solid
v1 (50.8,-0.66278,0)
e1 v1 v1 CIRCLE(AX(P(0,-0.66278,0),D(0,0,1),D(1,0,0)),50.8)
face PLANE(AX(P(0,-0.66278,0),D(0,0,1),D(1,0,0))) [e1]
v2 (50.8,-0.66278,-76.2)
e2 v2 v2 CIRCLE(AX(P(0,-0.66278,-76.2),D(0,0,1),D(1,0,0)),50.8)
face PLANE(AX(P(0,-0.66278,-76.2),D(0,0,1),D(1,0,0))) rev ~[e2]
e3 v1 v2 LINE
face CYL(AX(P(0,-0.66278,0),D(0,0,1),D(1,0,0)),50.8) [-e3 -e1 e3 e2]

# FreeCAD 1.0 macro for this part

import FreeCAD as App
import Part
import Sketcher
from FreeCAD import Vector
Q = App.Units.Quantity

doc = App.newDocument("Part")
params = doc.addObject("Spreadsheet::Sheet", "Params")
for row, (alias, value) in enumerate([
    ("sketch1_diameter", "4 in"),
    ("pad1_length", "3 in"),
], start=1):
    params.set(f"A{row}", alias)
    params.set(f"B{row}", "=" + value)
    params.setAlias(f"B{row}", alias)

body = doc.addObject("PartDesign::Body", "Body")

# Sketch on XY plane
sketch1 = body.newObject("Sketcher::SketchObject", "Sketch")
sketch1.AttachmentSupport = (doc.getObject("XY_Plane"), [""])
sketch1.MapMode = "FlatFace"
sketch1.addGeometry(Part.Circle(Vector(0, -1, 0), Vector(0, 0, 1), 51), False)
sketch1.addConstraint(Sketcher.Constraint("PointOnObject", 0, 3, -2))
sketch1.addConstraint(Sketcher.Constraint("Diameter", 0, Q("4 in")))
sketch1.addConstraint(Sketcher.Constraint("DistanceY", 0, 3, -1, 1, 0.66278))
sketch1.setExpression("Constraints[1]", "Params.sketch1_diameter")
pad1 = body.newObject("PartDesign::Pad", "Pad")
pad1.Profile = sketch1
pad1.setExpression("Length", "Params.pad1_length")
pad1.Reversed = True

doc.recompute()
